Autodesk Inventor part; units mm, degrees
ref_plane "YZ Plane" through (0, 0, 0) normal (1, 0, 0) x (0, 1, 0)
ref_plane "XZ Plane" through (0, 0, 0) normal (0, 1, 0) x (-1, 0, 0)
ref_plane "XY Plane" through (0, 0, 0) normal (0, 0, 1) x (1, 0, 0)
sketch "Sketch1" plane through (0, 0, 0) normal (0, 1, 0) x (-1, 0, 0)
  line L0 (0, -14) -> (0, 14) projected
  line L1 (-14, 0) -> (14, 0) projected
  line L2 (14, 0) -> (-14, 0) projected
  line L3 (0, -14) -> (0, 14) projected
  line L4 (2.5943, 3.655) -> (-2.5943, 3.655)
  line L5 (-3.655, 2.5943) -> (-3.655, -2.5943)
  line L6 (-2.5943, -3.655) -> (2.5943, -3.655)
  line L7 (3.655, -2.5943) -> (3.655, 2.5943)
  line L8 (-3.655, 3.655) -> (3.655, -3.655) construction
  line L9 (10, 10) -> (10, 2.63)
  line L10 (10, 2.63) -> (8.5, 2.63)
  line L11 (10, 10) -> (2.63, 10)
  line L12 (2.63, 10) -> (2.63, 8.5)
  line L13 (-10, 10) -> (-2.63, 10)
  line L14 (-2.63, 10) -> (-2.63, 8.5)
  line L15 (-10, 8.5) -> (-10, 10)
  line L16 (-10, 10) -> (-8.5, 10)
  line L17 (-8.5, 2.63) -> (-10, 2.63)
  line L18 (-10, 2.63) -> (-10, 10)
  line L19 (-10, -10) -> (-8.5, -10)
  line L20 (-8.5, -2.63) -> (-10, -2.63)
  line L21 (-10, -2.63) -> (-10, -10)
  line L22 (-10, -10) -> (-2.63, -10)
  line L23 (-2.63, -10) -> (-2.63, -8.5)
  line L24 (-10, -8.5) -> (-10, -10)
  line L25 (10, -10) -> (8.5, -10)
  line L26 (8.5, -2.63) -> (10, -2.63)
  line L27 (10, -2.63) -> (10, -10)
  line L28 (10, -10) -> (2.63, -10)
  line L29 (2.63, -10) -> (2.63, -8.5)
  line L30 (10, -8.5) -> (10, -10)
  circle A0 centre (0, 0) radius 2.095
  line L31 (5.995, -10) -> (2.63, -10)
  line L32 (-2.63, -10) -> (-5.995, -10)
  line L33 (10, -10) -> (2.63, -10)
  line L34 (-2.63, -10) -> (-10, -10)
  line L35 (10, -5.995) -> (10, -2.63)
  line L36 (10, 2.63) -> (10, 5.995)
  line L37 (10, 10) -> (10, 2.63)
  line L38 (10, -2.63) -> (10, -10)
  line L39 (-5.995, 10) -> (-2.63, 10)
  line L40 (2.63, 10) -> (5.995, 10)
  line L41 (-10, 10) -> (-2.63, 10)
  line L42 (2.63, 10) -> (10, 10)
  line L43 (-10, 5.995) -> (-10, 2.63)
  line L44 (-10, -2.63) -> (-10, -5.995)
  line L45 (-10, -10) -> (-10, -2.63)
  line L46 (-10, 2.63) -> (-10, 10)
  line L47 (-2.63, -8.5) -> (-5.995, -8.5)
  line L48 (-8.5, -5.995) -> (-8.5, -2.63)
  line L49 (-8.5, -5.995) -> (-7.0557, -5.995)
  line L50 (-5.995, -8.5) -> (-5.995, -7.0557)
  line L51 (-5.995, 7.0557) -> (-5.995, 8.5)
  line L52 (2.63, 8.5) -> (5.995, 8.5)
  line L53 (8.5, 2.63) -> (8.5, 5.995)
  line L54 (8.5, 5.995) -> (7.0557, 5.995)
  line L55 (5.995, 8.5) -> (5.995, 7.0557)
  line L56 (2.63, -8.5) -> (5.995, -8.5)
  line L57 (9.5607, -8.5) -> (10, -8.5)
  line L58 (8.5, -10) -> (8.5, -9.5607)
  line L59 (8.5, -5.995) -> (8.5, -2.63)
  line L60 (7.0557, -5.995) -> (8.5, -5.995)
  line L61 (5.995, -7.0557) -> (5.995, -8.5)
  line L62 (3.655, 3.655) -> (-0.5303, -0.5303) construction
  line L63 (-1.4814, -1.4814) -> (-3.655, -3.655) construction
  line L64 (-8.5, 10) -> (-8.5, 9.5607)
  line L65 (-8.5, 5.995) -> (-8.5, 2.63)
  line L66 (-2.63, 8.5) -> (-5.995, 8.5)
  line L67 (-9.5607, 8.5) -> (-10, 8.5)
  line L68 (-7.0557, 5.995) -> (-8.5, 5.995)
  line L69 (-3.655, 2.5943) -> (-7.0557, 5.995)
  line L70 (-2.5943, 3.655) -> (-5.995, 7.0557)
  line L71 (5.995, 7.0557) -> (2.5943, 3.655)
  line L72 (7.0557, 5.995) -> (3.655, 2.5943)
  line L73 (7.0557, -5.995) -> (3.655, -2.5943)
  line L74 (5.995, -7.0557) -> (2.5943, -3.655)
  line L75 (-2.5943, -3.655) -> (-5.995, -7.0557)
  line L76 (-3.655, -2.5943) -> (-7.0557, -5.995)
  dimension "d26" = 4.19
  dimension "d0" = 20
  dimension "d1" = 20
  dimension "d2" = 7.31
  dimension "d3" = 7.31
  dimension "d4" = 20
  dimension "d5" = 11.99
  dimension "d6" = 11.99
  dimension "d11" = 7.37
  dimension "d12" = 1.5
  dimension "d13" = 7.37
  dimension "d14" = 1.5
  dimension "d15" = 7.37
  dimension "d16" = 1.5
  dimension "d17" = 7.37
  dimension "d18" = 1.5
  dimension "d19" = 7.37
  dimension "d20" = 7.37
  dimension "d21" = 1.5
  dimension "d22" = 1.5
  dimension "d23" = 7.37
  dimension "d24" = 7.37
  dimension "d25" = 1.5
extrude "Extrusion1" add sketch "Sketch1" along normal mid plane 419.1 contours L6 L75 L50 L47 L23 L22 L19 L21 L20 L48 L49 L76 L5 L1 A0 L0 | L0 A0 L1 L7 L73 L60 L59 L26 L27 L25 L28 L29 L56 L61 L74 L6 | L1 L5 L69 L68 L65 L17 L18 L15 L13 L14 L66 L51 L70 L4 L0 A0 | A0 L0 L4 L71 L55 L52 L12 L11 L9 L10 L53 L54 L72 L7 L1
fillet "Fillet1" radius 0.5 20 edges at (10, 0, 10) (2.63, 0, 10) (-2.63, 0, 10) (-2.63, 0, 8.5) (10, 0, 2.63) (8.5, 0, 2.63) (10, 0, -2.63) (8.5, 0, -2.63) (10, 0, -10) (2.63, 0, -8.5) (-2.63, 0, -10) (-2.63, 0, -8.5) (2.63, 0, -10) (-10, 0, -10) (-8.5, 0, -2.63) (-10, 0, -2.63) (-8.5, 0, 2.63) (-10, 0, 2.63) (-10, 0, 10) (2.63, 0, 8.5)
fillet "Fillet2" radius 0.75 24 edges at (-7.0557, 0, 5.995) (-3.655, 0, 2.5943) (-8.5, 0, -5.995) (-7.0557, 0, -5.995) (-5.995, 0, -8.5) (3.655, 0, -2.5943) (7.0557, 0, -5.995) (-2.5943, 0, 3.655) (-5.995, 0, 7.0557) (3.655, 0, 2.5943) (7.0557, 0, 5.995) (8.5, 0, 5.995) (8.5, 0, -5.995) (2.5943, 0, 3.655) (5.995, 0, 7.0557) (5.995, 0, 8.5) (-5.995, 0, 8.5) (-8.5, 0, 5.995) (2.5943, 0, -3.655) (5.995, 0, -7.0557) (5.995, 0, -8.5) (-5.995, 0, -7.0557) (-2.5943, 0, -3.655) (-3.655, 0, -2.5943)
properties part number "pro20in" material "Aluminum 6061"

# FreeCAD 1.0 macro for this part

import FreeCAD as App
import Part
import Sketcher

V = App.Vector
Q = App.Units.Quantity


def edges_at(feature, points):
    """Names of the edges that pass closest to the given points."""
    edges = feature.Shape.Edges
    near = lambda p: min(range(len(edges)), key=lambda i: edges[i].distToShape(Part.Vertex(*p))[0])
    return sorted({f"Edge{near(p) + 1}" for p in points})


def add_polygon(sketch, points):
    """Adds a closed chain of lines whose ends are joined by coincident constraints."""
    first, n = sketch.GeometryCount, len(points)
    for a, b in zip(points, points[1:] + points[:1]):
        sketch.addGeometry(Part.LineSegment(App.Vector(*a, 0), App.Vector(*b, 0)), False)
    for i in range(n):
        sketch.addConstraint(Sketcher.Constraint("Coincident", first + i, 2, first + (i + 1) % n, 1))

doc = App.newDocument("Part")
body = doc.addObject("PartDesign::Body", "Body")

sketch1 = body.newObject("Sketcher::SketchObject", "Sketch")
sketch1.AttachmentSupport = (doc.getObject("XZ_Plane"), [""])
sketch1.MapMode = "FlatFace"
add_polygon(sketch1, [(2.6, -3.7), (-2.6, -3.7), (-6, -7.1), (-6, -8.5), (-2.6, -8.5), (-2.6, -10), (-10, -10), (-10, -2.6), (-8.5, -2.6), (-8.5, -6), (-7.1, -6), (-3.7, -2.6), (-3.7, 2.6), (-7.1, 6), (-8.5, 6), (-8.5, 2.6), (-10, 2.6), (-10, 10), (-2.6, 10), (-2.6, 8.5), (-6, 8.5), (-6, 7.1), (-2.6, 3.7), (2.6, 3.7), (6, 7.1), (6, 8.5), (2.6, 8.5), (2.6, 10), (10, 10), (10, 2.6), (8.5, 2.6), (8.5, 6), (7.1, 6), (3.7, 2.6), (3.7, -2.6), (7.1, -6), (8.5, -6), (8.5, -2.6), (10, -2.6), (10, -10), (2.6, -10), (2.6, -8.5), (6, -8.5), (6, -7.1)])
sketch1.addGeometry(Part.Circle(V(0, 0, 0), V(0, 0, 1), 2.1), False)
sketch1.addConstraint([
    Sketcher.Constraint("Horizontal", 0),
    Sketcher.Constraint("Vertical", 2),
    Sketcher.Constraint("Horizontal", 3),
    Sketcher.Constraint("Vertical", 4),
    Sketcher.Constraint("Horizontal", 5),
    Sketcher.Constraint("Vertical", 6),
    Sketcher.Constraint("Horizontal", 7),
    Sketcher.Constraint("Vertical", 8),
    Sketcher.Constraint("Horizontal", 9),
    Sketcher.Constraint("Vertical", 11),
    Sketcher.Constraint("Horizontal", 13),
    Sketcher.Constraint("Vertical", 14),
    Sketcher.Constraint("Horizontal", 15),
    Sketcher.Constraint("Vertical", 16),
    Sketcher.Constraint("Horizontal", 17),
    Sketcher.Constraint("Vertical", 18),
    Sketcher.Constraint("Horizontal", 19),
    Sketcher.Constraint("Vertical", 20),
    Sketcher.Constraint("Horizontal", 22),
    Sketcher.Constraint("Vertical", 24),
    Sketcher.Constraint("Horizontal", 25),
    Sketcher.Constraint("Vertical", 26),
    Sketcher.Constraint("Horizontal", 27),
    Sketcher.Constraint("Vertical", 28),
    Sketcher.Constraint("Horizontal", 29),
    Sketcher.Constraint("Vertical", 30),
    Sketcher.Constraint("Horizontal", 31),
    Sketcher.Constraint("Vertical", 33),
    Sketcher.Constraint("Horizontal", 35),
    Sketcher.Constraint("Vertical", 36),
    Sketcher.Constraint("Horizontal", 37),
    Sketcher.Constraint("Vertical", 38),
    Sketcher.Constraint("Horizontal", 39),
    Sketcher.Constraint("Vertical", 40),
    Sketcher.Constraint("Horizontal", 41),
    Sketcher.Constraint("Vertical", 42),
    Sketcher.Constraint("Coincident", 44, 3, -1, 1),
    Sketcher.Constraint("Symmetric", 0, 2, 22, 2, -1, 1),
    Sketcher.Constraint("Symmetric", 1, 2, 23, 2, -1, 1),
    Sketcher.Constraint("Symmetric", 3, 2, 25, 2, -1, 1),
    Sketcher.Constraint("Symmetric", 5, 2, 27, 2, -1, 1),
    Sketcher.Constraint("Symmetric", 7, 2, 29, 2, -1, 1),
    Sketcher.Constraint("Symmetric", 9, 2, 31, 2, -1, 1),
    Sketcher.Constraint("Symmetric", 10, 2, 32, 2, -1, 1),
    Sketcher.Constraint("Symmetric", 12, 2, 34, 2, -1, 1),
    Sketcher.Constraint("Symmetric", 14, 2, 36, 2, -1, 1),
    Sketcher.Constraint("Symmetric", 16, 2, 38, 2, -1, 1),
    Sketcher.Constraint("Symmetric", 18, 2, 40, 2, -1, 1),
    Sketcher.Constraint("Symmetric", 20, 2, 42, 2, -1, 1),
    Sketcher.Constraint("Symmetric", 20, 2, 23, 2, -2),
    Sketcher.Constraint("Symmetric", 18, 2, 25, 2, -2),
    Sketcher.Constraint("Symmetric", 16, 2, 27, 2, -2),
    Sketcher.Constraint("Symmetric", 14, 2, 29, 2, -2),
    Sketcher.Constraint("Symmetric", 12, 2, 31, 2, -2),
    Sketcher.Constraint("Parallel", 1, 10),
    Sketcher.Constraint("Perpendicular", 10, 12),
    Sketcher.Constraint("Parallel", 12, 21),
    Sketcher.Constraint("Perpendicular", 32, 34),
    Sketcher.Constraint("Parallel", 34, 43),
    Sketcher.Constraint("Horizontal", 11, 2, 32, 2),
    Sketcher.Constraint("Equal", 35, 2),
    Sketcher.Constraint("Equal", 37, 4),
    Sketcher.Constraint("Equal", 39, 6),
    Sketcher.Constraint("Equal", 41, 8),
    Sketcher.Constraint("Equal", 22, 11),
    Sketcher.Constraint("Equal", 1, 10),
    Sketcher.Constraint("Diameter", 44, Q("4.19 mm")),
    Sketcher.Constraint("DistanceX", 7, 1, 7, 2, Q("1.5 mm")),
    Sketcher.Constraint("DistanceX", 5, 2, 5, 1, Q("7.37 mm")),
    Sketcher.Constraint("DistanceY", 4, 2, -1, 1, Q("10 mm")),
    Sketcher.Constraint("DistanceX", 3, 1, 3, 2, Q("3.365 mm")),
    Sketcher.Constraint("DistanceX", 1, 2, 10, 2, Q("2.34 mm")),
    Sketcher.Constraint("DistanceX", 0, 2, 0, 1, Q("5.1886 mm")),
])
pad1 = body.newObject("PartDesign::Pad", "Pad")
pad1.Profile = sketch1
pad1.Length = 419.1
pad1.Midplane = True
doc.recompute()

fillet = body.newObject("PartDesign::Fillet", "Fillet")
fillet.Base = (pad1, edges_at(pad1, [
    (10, 0, 10),
    (2.63, 0, 10),
    (-2.63, 0, 10),
    (-2.63, 0, 8.5),
    (10, 0, 2.63),
    (8.5, 0, 2.63),
    (10, 0, -2.63),
    (8.5, 0, -2.63),
    (10, 0, -10),
    (2.63, 0, -8.5),
    (-2.63, 0, -10),
    (-2.63, 0, -8.5),
    (2.63, 0, -10),
    (-10, 0, -10),
    (-8.5, 0, -2.63),
    (-10, 0, -2.63),
    (-8.5, 0, 2.63),
    (-10, 0, 2.63),
    (-10, 0, 10),
    (2.63, 0, 8.5),
]))
fillet.Radius = 0.5
doc.recompute()

fillet2 = body.newObject("PartDesign::Fillet", "Fillet001")
fillet2.Base = (fillet, edges_at(fillet, [
    (-7.056, 0, 5.995),
    (-3.655, 0, 2.594),
    (-8.5, 0, -5.995),
    (-7.056, 0, -5.995),
    (-5.995, 0, -8.5),
    (3.655, 0, -2.594),
    (7.056, 0, -5.995),
    (-2.594, 0, 3.655),
    (-5.995, 0, 7.056),
    (3.655, 0, 2.594),
    (7.056, 0, 5.995),
    (8.5, 0, 5.995),
    (8.5, 0, -5.995),
    (2.594, 0, 3.655),
    (5.995, 0, 7.056),
    (5.995, 0, 8.5),
    (-5.995, 0, 8.5),
    (-8.5, 0, 5.995),
    (2.594, 0, -3.655),
    (5.995, 0, -7.056),
    (5.995, 0, -8.5),
    (-5.995, 0, -7.056),
    (-2.594, 0, -3.655),
    (-3.655, 0, -2.594),
]))
fillet2.Radius = 0.75

doc.recompute()
